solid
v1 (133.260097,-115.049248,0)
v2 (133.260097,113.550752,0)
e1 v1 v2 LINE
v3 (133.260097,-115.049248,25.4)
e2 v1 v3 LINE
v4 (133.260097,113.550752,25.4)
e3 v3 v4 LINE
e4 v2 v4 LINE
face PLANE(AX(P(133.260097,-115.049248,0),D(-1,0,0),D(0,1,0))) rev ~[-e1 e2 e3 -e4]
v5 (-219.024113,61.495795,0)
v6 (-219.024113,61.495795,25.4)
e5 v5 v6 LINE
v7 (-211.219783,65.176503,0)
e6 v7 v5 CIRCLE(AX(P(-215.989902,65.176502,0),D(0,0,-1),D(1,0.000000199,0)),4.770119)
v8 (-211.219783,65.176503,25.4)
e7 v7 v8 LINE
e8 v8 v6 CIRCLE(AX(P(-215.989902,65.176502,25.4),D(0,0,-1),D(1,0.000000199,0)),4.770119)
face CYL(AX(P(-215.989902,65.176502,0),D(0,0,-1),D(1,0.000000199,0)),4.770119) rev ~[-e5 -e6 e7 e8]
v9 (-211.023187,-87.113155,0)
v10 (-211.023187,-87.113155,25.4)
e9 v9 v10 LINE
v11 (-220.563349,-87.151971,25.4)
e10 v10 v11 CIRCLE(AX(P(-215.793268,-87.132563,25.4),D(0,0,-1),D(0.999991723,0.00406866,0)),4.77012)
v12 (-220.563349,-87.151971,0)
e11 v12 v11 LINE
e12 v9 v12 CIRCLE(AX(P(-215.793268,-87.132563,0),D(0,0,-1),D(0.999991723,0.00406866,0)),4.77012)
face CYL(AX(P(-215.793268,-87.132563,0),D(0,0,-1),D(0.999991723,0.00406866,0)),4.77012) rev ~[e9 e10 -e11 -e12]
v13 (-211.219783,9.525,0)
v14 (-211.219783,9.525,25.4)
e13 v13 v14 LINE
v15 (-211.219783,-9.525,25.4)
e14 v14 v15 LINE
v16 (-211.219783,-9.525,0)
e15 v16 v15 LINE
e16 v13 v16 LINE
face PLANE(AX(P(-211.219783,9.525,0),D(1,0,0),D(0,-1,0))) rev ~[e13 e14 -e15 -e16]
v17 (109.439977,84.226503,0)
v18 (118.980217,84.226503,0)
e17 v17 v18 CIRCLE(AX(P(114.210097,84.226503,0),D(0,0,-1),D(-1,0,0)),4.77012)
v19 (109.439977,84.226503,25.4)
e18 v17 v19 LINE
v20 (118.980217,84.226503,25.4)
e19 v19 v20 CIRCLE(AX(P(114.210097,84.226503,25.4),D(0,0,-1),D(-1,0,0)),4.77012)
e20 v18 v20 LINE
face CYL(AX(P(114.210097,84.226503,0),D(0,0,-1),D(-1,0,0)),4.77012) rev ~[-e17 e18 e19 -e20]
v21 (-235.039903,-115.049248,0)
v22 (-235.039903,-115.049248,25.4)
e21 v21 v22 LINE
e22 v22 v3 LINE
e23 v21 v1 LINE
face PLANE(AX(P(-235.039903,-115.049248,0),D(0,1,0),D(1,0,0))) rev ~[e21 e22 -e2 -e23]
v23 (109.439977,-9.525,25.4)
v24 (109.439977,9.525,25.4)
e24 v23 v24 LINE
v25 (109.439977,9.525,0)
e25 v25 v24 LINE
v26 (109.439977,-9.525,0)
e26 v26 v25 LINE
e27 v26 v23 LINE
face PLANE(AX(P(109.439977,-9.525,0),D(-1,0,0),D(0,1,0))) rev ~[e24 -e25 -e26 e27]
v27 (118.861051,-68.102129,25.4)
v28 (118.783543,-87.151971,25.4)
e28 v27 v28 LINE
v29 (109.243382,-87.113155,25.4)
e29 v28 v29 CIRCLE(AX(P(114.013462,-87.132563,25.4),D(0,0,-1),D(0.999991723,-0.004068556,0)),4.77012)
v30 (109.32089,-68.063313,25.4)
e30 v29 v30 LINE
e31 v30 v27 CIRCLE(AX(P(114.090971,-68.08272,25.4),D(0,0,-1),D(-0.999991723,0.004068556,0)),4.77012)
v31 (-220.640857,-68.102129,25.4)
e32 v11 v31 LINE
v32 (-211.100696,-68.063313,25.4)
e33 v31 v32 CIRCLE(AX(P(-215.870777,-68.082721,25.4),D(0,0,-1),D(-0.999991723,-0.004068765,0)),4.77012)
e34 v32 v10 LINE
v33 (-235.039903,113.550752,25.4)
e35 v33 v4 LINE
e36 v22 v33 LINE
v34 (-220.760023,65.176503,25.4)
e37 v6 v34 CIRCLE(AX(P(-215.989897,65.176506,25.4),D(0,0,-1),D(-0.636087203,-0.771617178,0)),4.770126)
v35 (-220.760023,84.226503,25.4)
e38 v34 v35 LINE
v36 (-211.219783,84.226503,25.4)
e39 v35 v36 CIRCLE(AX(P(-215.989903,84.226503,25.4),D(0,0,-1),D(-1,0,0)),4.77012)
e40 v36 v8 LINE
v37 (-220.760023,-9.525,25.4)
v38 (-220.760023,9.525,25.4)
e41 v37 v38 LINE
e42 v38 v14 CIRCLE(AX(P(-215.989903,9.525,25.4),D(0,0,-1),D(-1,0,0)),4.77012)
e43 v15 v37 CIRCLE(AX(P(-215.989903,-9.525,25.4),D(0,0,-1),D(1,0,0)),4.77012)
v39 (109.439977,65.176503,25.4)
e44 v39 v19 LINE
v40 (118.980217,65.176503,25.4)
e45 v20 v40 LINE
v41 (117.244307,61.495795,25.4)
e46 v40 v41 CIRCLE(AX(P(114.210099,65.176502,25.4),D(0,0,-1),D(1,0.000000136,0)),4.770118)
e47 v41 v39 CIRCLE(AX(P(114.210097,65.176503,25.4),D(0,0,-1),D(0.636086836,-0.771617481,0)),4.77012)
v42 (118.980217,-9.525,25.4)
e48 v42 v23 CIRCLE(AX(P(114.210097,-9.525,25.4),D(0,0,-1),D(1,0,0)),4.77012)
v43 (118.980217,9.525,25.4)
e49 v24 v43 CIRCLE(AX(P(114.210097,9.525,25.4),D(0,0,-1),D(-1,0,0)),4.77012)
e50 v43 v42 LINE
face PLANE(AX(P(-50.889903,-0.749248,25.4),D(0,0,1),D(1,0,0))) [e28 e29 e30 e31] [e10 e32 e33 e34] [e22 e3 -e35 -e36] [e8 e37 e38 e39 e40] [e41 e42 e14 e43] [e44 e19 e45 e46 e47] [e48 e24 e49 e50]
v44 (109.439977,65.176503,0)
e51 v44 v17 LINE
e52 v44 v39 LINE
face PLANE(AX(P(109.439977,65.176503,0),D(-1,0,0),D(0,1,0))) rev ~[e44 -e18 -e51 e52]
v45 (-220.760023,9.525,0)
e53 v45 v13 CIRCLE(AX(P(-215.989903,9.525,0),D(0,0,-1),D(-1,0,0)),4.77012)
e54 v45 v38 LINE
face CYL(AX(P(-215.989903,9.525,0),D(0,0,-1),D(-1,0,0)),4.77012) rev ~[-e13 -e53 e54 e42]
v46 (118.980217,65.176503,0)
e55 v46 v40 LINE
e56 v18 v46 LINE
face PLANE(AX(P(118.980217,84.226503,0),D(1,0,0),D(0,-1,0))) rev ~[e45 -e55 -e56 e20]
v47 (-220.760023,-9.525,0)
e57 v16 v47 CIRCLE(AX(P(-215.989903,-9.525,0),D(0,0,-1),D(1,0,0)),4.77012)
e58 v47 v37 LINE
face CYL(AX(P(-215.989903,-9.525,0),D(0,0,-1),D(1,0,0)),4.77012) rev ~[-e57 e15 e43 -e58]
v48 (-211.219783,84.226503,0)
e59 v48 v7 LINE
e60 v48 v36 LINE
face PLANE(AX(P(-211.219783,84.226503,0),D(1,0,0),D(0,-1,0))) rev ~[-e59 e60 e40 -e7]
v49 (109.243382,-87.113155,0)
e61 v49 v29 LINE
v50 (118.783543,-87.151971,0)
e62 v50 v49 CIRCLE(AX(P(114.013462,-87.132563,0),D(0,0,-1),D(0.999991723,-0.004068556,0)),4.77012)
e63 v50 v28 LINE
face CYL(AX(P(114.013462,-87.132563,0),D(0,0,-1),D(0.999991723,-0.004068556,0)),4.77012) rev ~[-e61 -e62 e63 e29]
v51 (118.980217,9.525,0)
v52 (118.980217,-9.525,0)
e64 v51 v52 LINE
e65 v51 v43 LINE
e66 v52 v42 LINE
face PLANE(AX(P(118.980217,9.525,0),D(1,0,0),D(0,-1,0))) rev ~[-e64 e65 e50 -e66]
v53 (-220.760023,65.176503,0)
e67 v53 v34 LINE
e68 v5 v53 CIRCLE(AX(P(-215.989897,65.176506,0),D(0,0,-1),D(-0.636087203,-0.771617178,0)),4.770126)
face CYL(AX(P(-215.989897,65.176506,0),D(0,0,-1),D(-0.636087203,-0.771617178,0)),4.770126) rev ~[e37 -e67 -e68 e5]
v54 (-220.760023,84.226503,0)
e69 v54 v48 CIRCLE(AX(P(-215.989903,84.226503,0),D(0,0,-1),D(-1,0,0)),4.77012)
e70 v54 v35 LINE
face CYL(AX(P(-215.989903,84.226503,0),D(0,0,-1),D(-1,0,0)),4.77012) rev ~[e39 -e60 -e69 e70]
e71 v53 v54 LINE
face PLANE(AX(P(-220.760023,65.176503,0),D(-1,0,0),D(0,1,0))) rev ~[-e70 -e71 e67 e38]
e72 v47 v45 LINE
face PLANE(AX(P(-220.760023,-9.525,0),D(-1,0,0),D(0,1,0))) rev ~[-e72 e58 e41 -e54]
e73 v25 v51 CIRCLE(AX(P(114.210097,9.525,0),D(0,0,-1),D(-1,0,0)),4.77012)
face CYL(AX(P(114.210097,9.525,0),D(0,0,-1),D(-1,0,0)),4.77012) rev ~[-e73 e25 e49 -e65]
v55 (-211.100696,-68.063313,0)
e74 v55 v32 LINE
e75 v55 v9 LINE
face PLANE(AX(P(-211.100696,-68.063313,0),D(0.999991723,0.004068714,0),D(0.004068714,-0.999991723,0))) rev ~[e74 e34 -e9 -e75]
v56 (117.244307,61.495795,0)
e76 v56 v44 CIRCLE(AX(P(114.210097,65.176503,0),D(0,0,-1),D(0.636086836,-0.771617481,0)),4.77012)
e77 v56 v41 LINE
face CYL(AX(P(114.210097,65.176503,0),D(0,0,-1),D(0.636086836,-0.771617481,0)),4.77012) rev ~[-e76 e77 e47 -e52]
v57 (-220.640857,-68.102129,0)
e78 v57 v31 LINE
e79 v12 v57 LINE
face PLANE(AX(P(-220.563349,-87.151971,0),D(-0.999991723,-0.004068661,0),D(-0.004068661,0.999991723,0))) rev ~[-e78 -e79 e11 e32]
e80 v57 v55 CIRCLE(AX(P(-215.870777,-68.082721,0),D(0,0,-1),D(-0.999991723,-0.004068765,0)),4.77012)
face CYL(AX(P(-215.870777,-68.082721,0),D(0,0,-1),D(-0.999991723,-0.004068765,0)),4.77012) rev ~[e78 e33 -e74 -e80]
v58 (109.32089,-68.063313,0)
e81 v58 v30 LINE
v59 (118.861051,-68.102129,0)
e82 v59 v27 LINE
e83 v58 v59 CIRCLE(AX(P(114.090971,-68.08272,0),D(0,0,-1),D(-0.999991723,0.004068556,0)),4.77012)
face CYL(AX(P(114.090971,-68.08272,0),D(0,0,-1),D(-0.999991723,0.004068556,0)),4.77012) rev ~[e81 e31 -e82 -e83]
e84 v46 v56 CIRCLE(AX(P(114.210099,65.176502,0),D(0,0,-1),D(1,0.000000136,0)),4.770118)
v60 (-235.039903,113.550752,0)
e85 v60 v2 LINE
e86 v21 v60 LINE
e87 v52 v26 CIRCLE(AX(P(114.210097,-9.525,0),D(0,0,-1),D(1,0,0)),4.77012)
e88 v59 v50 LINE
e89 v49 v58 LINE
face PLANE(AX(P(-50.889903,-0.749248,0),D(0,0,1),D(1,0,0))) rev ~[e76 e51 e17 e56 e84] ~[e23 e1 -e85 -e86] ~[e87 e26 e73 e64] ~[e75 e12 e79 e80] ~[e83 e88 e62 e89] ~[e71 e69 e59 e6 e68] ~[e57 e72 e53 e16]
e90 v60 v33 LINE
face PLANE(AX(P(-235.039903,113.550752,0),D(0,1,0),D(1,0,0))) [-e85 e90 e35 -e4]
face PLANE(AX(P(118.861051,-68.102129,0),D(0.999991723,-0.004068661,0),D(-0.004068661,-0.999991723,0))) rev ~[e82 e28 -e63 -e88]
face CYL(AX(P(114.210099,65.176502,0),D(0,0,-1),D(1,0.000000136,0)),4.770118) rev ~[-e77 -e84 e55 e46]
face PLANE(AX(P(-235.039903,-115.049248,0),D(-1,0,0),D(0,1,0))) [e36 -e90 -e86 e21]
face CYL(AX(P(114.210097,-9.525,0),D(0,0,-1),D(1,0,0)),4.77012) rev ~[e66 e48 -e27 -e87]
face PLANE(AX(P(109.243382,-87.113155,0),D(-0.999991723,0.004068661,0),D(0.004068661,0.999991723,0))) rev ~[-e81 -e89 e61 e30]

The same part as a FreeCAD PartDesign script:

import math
import FreeCAD as App
import Part
import Sketcher

V = App.Vector
Q = App.Units.Quantity

doc = App.newDocument("Part")
params = doc.addObject("Spreadsheet::Sheet", "Params")
for row, (alias, value) in enumerate([
    ("sketch1_height", "9 in"),
    ("sketch1_width", "14.5 in"),
    ("sketch1_height2", "0.75 in"),
    ("sketch1_length", "0.75 in"),
    ("pad1_length", "1 in"),
], start=1):
    params.set(f"A{row}", alias)
    params.set(f"B{row}", "=" + value)
    params.setAlias(f"B{row}", alias)

body = doc.addObject("PartDesign::Body", "Body")

sketch1 = body.newObject("Sketcher::SketchObject", "Sketch")
sketch1.AttachmentSupport = (doc.getObject("XY_Plane"), [""])
sketch1.MapMode = "FlatFace"
sketch1.addGeometry([
    Part.LineSegment(V(-235, 113.6, 0), V(-235, -115, 0)),
    Part.LineSegment(V(-235, -115, 0), V(133.3, -115, 0)),
    Part.LineSegment(V(133.3, -115, 0), V(133.3, 113.6, 0)),
    Part.LineSegment(V(133.3, 113.6, 0), V(-235, 113.6, 0)),
    Part.LineSegment(V(-220.6, -87.2, 0), V(-220.6, -68.1, 0)),
    Part.ArcOfCircle(Part.Circle(V(-215.9, -68.1, 0), V(0, 0, 1), 4.8), math.radians(0), math.radians(180)),
    Part.LineSegment(V(-211.1, -68.1, 0), V(-211, -87.1, 0)),
    Part.ArcOfCircle(Part.Circle(V(-215.8, -87.1, 0), V(0, 0, 1), 4.8), math.radians(-180), math.radians(0)),
    Part.ArcOfCircle(Part.Circle(V(114.1, -68.1, 0), V(0, 0, 1), 4.8), math.radians(0), math.radians(180)),
    Part.LineSegment(V(118.9, -68.1, 0), V(118.8, -87.2, 0)),
    Part.ArcOfCircle(Part.Circle(V(114, -87.1, 0), V(0, 0, 1), 4.8), math.radians(180), math.radians(360)),
    Part.LineSegment(V(109.2, -87.1, 0), V(109.3, -68.1, 0)),
    Part.ArcOfCircle(Part.Circle(V(-216, -9.5, 0), V(0, 0, 1), 4.8), math.radians(180), math.radians(360)),
    Part.LineSegment(V(-220.8, -9.5, 0), V(-220.8, 9.5, 0)),
    Part.ArcOfCircle(Part.Circle(V(-216, 9.5, 0), V(0, 0, 1), 4.8), math.radians(0), math.radians(180)),
    Part.LineSegment(V(-211.2, 9.5, 0), V(-211.2, -9.5, 0)),
    Part.ArcOfCircle(Part.Circle(V(-216, 65.2, 0), V(0, 0, 1), 4.8), math.radians(-130), math.radians(0)),
    Part.ArcOfCircle(Part.Circle(V(-216, 65.2, 0), V(0, 0, 1), 4.8), math.radians(-180), math.radians(-130)),
    Part.LineSegment(V(-220.8, 65.2, 0), V(-220.8, 84.2, 0)),
    Part.ArcOfCircle(Part.Circle(V(-216, 84.2, 0), V(0, 0, 1), 4.8), math.radians(0), math.radians(180)),
    Part.LineSegment(V(-211.2, 84.2, 0), V(-211.2, 65.2, 0)),
    Part.LineSegment(V(109.4, -9.5, 0), V(109.4, 9.5, 0)),
    Part.ArcOfCircle(Part.Circle(V(114.2, 9.5, 0), V(0, 0, 1), 4.8), math.radians(0), math.radians(180)),
    Part.LineSegment(V(119, 9.5, 0), V(119, -9.5, 0)),
    Part.ArcOfCircle(Part.Circle(V(114.2, -9.5, 0), V(0, 0, 1), 4.8), math.radians(180), math.radians(360)),
    Part.ArcOfCircle(Part.Circle(V(114.2, 65.2, 0), V(0, 0, 1), 4.8), math.radians(180), math.radians(310)),
    Part.LineSegment(V(109.4, 65.2, 0), V(109.4, 84.2, 0)),
    Part.ArcOfCircle(Part.Circle(V(114.2, 84.2, 0), V(0, 0, 1), 4.8), math.radians(0), math.radians(180)),
    Part.LineSegment(V(119, 84.2, 0), V(119, 65.2, 0)),
    Part.ArcOfCircle(Part.Circle(V(114.2, 65.2, 0), V(0, 0, 1), 4.8), math.radians(-50), math.radians(0)),
], False)
sketch1.addConstraint([
    Sketcher.Constraint("Coincident", 0, 2, 1, 1),
    Sketcher.Constraint("Coincident", 1, 2, 2, 1),
    Sketcher.Constraint("Coincident", 2, 2, 3, 1),
    Sketcher.Constraint("Coincident", 3, 2, 0, 1),
    Sketcher.Constraint("Tangent", 4, 2, 5, 2),
    Sketcher.Constraint("Tangent", 5, 1, 6, 1),
    Sketcher.Constraint("Tangent", 6, 2, 7, 2),
    Sketcher.Constraint("Tangent", 7, 1, 4, 1),
    Sketcher.Constraint("Tangent", 8, 1, 9, 1),
    Sketcher.Constraint("Tangent", 9, 2, 10, 2),
    Sketcher.Constraint("Tangent", 10, 1, 11, 1),
    Sketcher.Constraint("Tangent", 11, 2, 8, 2),
    Sketcher.Constraint("Tangent", 12, 1, 13, 1),
    Sketcher.Constraint("Tangent", 13, 2, 14, 2),
    Sketcher.Constraint("Tangent", 14, 1, 15, 1),
    Sketcher.Constraint("Tangent", 15, 2, 12, 2),
    Sketcher.Constraint("Tangent", 16, 1, 17, 2),
    Sketcher.Constraint("Tangent", 17, 1, 18, 1),
    Sketcher.Constraint("Tangent", 18, 2, 19, 2),
    Sketcher.Constraint("Tangent", 19, 1, 20, 1),
    Sketcher.Constraint("Tangent", 20, 2, 16, 2),
    Sketcher.Constraint("Tangent", 21, 2, 22, 2),
    Sketcher.Constraint("Tangent", 22, 1, 23, 1),
    Sketcher.Constraint("Tangent", 23, 2, 24, 2),
    Sketcher.Constraint("Tangent", 24, 1, 21, 1),
    Sketcher.Constraint("Tangent", 25, 1, 26, 1),
    Sketcher.Constraint("Tangent", 26, 2, 27, 2),
    Sketcher.Constraint("Tangent", 27, 1, 28, 1),
    Sketcher.Constraint("Tangent", 28, 2, 29, 2),
    Sketcher.Constraint("Tangent", 29, 1, 25, 2),
    Sketcher.Constraint("Vertical", 0),
    Sketcher.Constraint("Horizontal", 1),
    Sketcher.Constraint("Vertical", 2),
    Sketcher.Constraint("Horizontal", 3),
    Sketcher.Constraint("Vertical", 13),
    Sketcher.Constraint("Vertical", 15),
    Sketcher.Constraint("Vertical", 18),
    Sketcher.Constraint("Vertical", 20),
    Sketcher.Constraint("Vertical", 21),
    Sketcher.Constraint("Vertical", 23),
    Sketcher.Constraint("Vertical", 26),
    Sketcher.Constraint("Vertical", 28),
    Sketcher.Constraint("Equal", 5, 7),
    Sketcher.Constraint("Equal", 7, 8),
    Sketcher.Constraint("Equal", 8, 10),
    Sketcher.Constraint("Equal", 10, 12),
    Sketcher.Constraint("Equal", 14, 16),
    Sketcher.Constraint("Equal", 16, 19),
    Sketcher.Constraint("Equal", 19, 22),
    Sketcher.Constraint("Equal", 24, 25),
    Sketcher.Constraint("Equal", 25, 27),
    Sketcher.Constraint("Horizontal", 5, 3, 8, 3),
    Sketcher.Constraint("Horizontal", 7, 3, 10, 3),
    Sketcher.Constraint("Horizontal", 14, 3, 22, 3),
    Sketcher.Constraint("Horizontal", 12, 3, 24, 3),
    Sketcher.Constraint("Horizontal", 16, 3, 25, 3),
    Sketcher.Constraint("Horizontal", 19, 3, 27, 3),
    Sketcher.Constraint("Horizontal", 4, 2, 8, 1),
    Sketcher.Constraint("Horizontal", 16, 1, 29, 1),
    Sketcher.Constraint("Vertical", 14, 3, 16, 3),
    Sketcher.Constraint("Vertical", 24, 3, 25, 3),
    Sketcher.Constraint("Equal", 15, 18),
    Sketcher.Constraint("DistanceY", 0, 2, 0, 1, Q("9 in")),
    Sketcher.Constraint("DistanceX", 1, 1, 1, 2, Q("14.5 in")),
    Sketcher.Constraint("DistanceX", 14, 3, 22, 3, Q("13 in")),
    Sketcher.Constraint("DistanceY", 13, 1, 13, 2, Q("0.75 in")),
    Sketcher.Constraint("Radius", 5, Q("0.1878 in")),
    Sketcher.Constraint("Distance", 4, Q("0.75 in")),
    Sketcher.Constraint("DistanceX", 0, 2, 12, 3, Q("0.75 in")),
    Sketcher.Constraint("DistanceY", 12, 3, -1, 1, Q("0.375 in")),
    Sketcher.Constraint("DistanceX", -1, 1, 29, 3, 114.210099),
    Sketcher.Constraint("DistanceY", 5, 3, -1, 1, 68.082721),
    Sketcher.Constraint("DistanceX", 7, 3, -1, 1, 215.793268),
    Sketcher.Constraint("DistanceX", -1, 1, 8, 3, 114.090971),
    Sketcher.Constraint("DistanceY", 0, 2, -1, 1, 115.049248),
    Sketcher.Constraint("DistanceY", 4, 2, -1, 1, 68.102129),
    Sketcher.Constraint("DistanceY", 7, 3, 17, 3, 152.309069),
    Sketcher.Constraint("DistanceX", 16, 1, 16, 3, 3.034211),
])
sketch1.setExpression("Constraints[62]", "Params.sketch1_height")
sketch1.setExpression("Constraints[63]", "Params.sketch1_width")
sketch1.setExpression("Constraints[65]", "Params.sketch1_height2")
sketch1.setExpression("Constraints[67]", "Params.sketch1_length")
pad1 = body.newObject("PartDesign::Pad", "Pad")
pad1.Profile = sketch1
pad1.setExpression("Length", "Params.pad1_length")

doc.recompute()
